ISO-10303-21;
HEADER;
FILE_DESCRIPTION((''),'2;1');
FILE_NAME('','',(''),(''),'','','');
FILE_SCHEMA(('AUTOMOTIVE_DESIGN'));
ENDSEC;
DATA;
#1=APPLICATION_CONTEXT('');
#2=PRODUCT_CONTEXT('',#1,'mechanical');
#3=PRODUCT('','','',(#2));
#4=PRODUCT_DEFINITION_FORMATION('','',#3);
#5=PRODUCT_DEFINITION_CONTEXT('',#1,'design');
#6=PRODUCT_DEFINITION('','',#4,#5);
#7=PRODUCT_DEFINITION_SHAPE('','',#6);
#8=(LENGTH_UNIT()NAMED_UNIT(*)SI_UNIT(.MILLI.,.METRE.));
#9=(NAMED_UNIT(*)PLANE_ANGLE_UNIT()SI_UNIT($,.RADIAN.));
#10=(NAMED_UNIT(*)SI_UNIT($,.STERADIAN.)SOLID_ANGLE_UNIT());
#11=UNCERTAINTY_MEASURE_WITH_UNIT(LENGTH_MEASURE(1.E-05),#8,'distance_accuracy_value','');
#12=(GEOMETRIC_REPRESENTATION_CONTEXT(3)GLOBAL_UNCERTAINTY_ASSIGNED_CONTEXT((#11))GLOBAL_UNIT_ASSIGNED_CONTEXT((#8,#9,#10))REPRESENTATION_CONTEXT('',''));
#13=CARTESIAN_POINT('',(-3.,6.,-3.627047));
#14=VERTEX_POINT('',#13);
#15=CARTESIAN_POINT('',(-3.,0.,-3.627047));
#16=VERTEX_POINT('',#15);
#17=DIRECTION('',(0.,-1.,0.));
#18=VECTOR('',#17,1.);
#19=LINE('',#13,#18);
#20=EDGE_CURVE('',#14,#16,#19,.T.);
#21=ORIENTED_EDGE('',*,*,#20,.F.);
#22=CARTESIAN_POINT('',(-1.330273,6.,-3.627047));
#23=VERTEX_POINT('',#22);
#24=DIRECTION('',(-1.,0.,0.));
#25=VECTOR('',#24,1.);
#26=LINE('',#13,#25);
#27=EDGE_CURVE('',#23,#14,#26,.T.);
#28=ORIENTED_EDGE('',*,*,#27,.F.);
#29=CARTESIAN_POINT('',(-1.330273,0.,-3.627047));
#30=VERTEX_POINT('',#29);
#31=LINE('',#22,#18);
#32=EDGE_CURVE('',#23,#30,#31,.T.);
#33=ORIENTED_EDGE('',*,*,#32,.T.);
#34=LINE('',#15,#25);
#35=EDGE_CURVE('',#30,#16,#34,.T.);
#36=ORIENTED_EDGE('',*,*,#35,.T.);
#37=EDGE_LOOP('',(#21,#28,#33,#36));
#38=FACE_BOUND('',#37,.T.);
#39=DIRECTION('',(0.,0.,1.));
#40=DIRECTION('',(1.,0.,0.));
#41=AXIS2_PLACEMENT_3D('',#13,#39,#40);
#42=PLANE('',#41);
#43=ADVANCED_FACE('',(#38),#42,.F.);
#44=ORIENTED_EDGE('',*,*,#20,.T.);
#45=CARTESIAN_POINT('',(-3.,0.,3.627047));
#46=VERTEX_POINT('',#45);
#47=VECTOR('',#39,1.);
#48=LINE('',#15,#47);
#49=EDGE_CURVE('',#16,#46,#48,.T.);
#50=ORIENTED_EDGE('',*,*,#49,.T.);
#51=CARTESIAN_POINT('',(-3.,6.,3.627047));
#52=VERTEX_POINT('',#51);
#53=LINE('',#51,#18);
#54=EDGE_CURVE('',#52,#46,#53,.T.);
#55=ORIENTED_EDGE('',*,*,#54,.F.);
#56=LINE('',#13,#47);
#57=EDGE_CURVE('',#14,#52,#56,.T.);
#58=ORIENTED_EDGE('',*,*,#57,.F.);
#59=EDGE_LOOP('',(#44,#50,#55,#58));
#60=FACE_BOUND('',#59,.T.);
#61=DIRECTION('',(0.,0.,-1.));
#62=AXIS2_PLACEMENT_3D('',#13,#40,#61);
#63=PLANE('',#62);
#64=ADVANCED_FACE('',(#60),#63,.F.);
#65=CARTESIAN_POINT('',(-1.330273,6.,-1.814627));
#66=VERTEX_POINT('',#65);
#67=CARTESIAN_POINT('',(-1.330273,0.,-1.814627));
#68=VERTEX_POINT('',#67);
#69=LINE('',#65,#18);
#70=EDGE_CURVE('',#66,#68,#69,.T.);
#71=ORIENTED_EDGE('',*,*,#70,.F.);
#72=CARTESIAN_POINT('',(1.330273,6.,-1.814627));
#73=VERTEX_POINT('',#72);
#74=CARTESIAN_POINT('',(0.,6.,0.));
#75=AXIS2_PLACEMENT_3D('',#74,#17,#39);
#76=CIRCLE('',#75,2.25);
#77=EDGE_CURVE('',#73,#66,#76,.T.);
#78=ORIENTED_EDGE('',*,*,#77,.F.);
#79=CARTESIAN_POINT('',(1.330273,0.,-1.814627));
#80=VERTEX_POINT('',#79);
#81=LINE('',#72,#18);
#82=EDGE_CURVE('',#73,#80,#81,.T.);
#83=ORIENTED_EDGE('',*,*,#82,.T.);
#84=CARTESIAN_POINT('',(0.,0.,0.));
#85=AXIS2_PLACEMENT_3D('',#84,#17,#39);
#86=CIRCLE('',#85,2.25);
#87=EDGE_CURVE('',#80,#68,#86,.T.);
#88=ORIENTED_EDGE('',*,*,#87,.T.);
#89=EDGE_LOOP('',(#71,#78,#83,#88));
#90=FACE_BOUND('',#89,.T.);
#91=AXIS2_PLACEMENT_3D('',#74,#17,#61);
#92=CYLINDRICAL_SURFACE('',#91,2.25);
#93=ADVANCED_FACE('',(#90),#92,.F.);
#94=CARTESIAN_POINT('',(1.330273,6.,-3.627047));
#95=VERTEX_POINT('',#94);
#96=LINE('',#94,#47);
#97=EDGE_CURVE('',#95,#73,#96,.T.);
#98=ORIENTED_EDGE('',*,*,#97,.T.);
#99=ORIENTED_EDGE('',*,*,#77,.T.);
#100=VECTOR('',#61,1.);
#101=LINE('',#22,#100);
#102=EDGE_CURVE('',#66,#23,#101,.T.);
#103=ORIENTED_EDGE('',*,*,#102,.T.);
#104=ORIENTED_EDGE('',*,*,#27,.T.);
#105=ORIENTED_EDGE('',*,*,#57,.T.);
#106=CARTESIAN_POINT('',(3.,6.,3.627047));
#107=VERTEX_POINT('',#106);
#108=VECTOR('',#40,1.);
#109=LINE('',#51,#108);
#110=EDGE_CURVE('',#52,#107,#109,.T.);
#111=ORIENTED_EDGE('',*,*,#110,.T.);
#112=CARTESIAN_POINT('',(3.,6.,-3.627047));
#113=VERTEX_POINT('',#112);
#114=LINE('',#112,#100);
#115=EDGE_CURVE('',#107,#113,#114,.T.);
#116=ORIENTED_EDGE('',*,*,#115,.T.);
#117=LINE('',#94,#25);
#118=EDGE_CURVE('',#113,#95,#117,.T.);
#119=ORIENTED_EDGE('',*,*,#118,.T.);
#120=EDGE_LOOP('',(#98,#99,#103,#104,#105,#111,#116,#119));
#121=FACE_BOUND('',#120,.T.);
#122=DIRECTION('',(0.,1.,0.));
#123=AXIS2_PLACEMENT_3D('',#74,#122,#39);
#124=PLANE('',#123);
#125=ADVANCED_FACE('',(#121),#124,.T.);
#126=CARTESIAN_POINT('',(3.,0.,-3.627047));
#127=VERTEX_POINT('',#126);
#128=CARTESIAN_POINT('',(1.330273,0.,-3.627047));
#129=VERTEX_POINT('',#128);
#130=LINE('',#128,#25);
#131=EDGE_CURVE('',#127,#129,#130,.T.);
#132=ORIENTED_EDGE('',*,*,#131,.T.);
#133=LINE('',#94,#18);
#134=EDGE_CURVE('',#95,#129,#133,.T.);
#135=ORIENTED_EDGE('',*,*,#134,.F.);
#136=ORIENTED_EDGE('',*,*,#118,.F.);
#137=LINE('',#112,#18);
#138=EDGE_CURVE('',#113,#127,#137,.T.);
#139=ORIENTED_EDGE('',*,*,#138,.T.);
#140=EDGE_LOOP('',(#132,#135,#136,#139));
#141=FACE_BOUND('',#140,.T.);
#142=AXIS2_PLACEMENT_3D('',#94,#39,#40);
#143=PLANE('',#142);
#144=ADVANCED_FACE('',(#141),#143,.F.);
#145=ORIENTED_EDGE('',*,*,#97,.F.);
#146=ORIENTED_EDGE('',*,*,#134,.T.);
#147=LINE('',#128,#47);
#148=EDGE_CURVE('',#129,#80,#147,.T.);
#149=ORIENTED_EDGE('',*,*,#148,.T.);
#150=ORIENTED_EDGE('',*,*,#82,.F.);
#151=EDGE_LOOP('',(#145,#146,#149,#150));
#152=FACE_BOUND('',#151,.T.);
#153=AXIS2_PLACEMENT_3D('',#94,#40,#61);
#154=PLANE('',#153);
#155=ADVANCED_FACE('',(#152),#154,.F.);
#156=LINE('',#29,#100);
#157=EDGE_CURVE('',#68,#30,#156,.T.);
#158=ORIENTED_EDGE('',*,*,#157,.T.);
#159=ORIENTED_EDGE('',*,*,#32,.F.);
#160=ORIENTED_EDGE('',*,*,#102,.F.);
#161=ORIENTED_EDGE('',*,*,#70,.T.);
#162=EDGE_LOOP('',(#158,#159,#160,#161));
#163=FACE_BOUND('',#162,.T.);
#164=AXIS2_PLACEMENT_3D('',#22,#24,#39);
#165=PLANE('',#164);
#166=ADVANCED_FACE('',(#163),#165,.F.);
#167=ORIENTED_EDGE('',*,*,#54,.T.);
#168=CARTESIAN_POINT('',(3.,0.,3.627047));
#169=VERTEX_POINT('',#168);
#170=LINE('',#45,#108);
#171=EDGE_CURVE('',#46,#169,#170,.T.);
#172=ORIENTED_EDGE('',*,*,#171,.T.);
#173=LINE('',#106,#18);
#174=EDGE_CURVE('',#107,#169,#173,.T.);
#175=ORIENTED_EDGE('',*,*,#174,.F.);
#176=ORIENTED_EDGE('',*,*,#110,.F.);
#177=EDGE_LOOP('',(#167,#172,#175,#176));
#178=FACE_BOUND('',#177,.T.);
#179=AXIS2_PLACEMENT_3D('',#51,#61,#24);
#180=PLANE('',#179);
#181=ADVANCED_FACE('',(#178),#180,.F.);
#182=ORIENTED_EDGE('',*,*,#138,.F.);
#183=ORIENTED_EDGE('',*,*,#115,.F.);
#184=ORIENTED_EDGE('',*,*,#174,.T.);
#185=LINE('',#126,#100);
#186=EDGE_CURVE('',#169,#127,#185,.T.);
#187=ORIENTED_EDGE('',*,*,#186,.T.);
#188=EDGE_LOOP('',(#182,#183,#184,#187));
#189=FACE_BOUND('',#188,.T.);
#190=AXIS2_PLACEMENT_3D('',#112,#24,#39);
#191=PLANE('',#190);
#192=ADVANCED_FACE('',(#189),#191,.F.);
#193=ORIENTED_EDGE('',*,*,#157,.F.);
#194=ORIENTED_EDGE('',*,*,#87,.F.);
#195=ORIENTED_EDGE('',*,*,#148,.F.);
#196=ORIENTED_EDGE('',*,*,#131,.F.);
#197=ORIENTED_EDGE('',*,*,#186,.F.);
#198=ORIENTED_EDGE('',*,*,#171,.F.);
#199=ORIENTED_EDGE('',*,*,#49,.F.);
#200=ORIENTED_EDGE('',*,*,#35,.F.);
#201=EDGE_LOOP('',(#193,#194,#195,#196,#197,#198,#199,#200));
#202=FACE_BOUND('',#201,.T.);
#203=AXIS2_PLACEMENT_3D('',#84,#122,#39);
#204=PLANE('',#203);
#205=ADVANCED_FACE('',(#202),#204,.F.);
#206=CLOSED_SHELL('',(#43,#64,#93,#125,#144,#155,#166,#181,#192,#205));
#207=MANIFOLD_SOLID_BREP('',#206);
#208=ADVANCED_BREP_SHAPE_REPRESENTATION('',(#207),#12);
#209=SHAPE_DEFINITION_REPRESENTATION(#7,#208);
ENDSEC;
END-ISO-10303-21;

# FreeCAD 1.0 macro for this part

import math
import FreeCAD as App
import Part
import Sketcher

V = App.Vector
Q = App.Units.Quantity

doc = App.newDocument("Part")
body = doc.addObject("PartDesign::Body", "Body")

# Sketch on XZ plane
sketch1 = body.newObject("Sketcher::SketchObject", "Sketch")
sketch1.AttachmentSupport = (doc.getObject("XZ_Plane"), [""])
sketch1.MapMode = "FlatFace"
sketch1.addGeometry(Part.LineSegment(V(-1.3, -3.6, 0), V(-3, -3.6, 0)), False)
sketch1.addGeometry(Part.LineSegment(V(-3, -3.6, 0), V(-3, 3.6, 0)), False)
sketch1.addGeometry(Part.LineSegment(V(-3, 3.6, 0), V(3, 3.6, 0)), False)
sketch1.addGeometry(Part.LineSegment(V(3, 3.6, 0), V(3, -3.6, 0)), False)
sketch1.addGeometry(Part.LineSegment(V(3, -3.6, 0), V(1.3, -3.6, 0)), False)
sketch1.addGeometry(Part.LineSegment(V(1.3, -3.6, 0), V(1.3, -1.8, 0)), False)
sketch1.addGeometry(Part.ArcOfCircle(Part.Circle(V(0, 0, 0), V(0, 0, 1), 2.2), math.radians(-54), math.radians(234)), False)
sketch1.addGeometry(Part.LineSegment(V(-1.3, -1.8, 0), V(-1.3, -3.6, 0)), False)
sketch1.addConstraint(Sketcher.Constraint("Coincident", 0, 2, 1, 1))
sketch1.addConstraint(Sketcher.Constraint("Coincident", 1, 2, 2, 1))
sketch1.addConstraint(Sketcher.Constraint("Coincident", 2, 2, 3, 1))
sketch1.addConstraint(Sketcher.Constraint("Coincident", 3, 2, 4, 1))
sketch1.addConstraint(Sketcher.Constraint("Coincident", 4, 2, 5, 1))
sketch1.addConstraint(Sketcher.Constraint("Coincident", 5, 2, 6, 1))
sketch1.addConstraint(Sketcher.Constraint("Coincident", 6, 2, 7, 1))
sketch1.addConstraint(Sketcher.Constraint("Coincident", 7, 2, 0, 1))
sketch1.addConstraint(Sketcher.Constraint("Horizontal", 0))
sketch1.addConstraint(Sketcher.Constraint("Vertical", 1))
sketch1.addConstraint(Sketcher.Constraint("Horizontal", 2))
sketch1.addConstraint(Sketcher.Constraint("Vertical", 3))
sketch1.addConstraint(Sketcher.Constraint("Horizontal", 4))
sketch1.addConstraint(Sketcher.Constraint("Vertical", 5))
sketch1.addConstraint(Sketcher.Constraint("Vertical", 7))
sketch1.addConstraint(Sketcher.Constraint("Coincident", 6, 3, -1, 1))
sketch1.addConstraint(Sketcher.Constraint("Symmetric", 0, 2, 2, 2, -1, 1))
sketch1.addConstraint(Sketcher.Constraint("Symmetric", 4, 2, 7, 2, -2))
sketch1.addConstraint(Sketcher.Constraint("DistanceX", 2, 1, 2, 2, Q("6 mm")))
sketch1.addConstraint(Sketcher.Constraint("Radius", 6, Q("2.25 mm")))
sketch1.addConstraint(Sketcher.Constraint("DistanceY", 5, 1, 5, 2, Q("1.812419 mm")))
sketch1.addConstraint(Sketcher.Constraint("DistanceX", 0, 2, 0, 1, Q("1.669727 mm")))
pad1 = body.newObject("PartDesign::Pad", "Pad")
pad1.Profile = sketch1
pad1.Length = 6
pad1.Reversed = True

doc.recompute()
